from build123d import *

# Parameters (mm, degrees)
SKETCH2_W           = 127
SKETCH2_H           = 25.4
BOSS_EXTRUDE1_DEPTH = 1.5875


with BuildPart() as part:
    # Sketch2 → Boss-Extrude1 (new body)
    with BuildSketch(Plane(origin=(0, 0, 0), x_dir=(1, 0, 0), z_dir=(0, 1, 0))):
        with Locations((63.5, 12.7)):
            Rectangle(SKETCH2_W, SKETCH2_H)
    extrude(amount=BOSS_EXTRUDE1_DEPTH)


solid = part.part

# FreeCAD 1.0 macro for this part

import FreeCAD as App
import Part
import Sketcher
Q = App.Units.Quantity


def add_polygon(sketch, points):
    """Adds a closed chain of lines whose ends are joined by coincident constraints."""
    first, n = sketch.GeometryCount, len(points)
    for a, b in zip(points, points[1:] + points[:1]):
        sketch.addGeometry(Part.LineSegment(App.Vector(*a, 0), App.Vector(*b, 0)), False)
    for i in range(n):
        sketch.addConstraint(Sketcher.Constraint("Coincident", first + i, 2, first + (i + 1) % n, 1))

doc = App.newDocument("Part")
params = doc.addObject("Spreadsheet::Sheet", "Params")
for row, (alias, value) in enumerate([
    ("sketch1_width", "5 in"),
    ("sketch1_height", "1 in"),
    ("pad1_length", "0.0625 in"),
], start=1):
    params.set(f"A{row}", alias)
    params.set(f"B{row}", "=" + value)
    params.setAlias(f"B{row}", alias)

body = doc.addObject("PartDesign::Body", "Body")

sketch1 = body.newObject("Sketcher::SketchObject", "Sketch")
sketch1.AttachmentSupport = (doc.getObject("XZ_Plane"), [""])
sketch1.MapMode = "FlatFace"
add_polygon(sketch1, [(0, -25), (0, 0), (127, 0), (127, -25)])
sketch1.addConstraint([
    Sketcher.Constraint("Vertical", 0),
    Sketcher.Constraint("Horizontal", 1),
    Sketcher.Constraint("Vertical", 2),
    Sketcher.Constraint("Horizontal", 3),
    Sketcher.Constraint("Coincident", 0, 2, -1, 1),
    Sketcher.Constraint("DistanceX", 1, 1, 1, 2, Q("5 in")),
    Sketcher.Constraint("DistanceY", 0, 1, 0, 2, Q("1 in")),
])
sketch1.setExpression("Constraints[9]", "Params.sketch1_width")
sketch1.setExpression("Constraints[10]", "Params.sketch1_height")
pad1 = body.newObject("PartDesign::Pad", "Pad")
pad1.Profile = sketch1
pad1.setExpression("Length", "Params.pad1_length")
pad1.Reversed = True

doc.recompute()
